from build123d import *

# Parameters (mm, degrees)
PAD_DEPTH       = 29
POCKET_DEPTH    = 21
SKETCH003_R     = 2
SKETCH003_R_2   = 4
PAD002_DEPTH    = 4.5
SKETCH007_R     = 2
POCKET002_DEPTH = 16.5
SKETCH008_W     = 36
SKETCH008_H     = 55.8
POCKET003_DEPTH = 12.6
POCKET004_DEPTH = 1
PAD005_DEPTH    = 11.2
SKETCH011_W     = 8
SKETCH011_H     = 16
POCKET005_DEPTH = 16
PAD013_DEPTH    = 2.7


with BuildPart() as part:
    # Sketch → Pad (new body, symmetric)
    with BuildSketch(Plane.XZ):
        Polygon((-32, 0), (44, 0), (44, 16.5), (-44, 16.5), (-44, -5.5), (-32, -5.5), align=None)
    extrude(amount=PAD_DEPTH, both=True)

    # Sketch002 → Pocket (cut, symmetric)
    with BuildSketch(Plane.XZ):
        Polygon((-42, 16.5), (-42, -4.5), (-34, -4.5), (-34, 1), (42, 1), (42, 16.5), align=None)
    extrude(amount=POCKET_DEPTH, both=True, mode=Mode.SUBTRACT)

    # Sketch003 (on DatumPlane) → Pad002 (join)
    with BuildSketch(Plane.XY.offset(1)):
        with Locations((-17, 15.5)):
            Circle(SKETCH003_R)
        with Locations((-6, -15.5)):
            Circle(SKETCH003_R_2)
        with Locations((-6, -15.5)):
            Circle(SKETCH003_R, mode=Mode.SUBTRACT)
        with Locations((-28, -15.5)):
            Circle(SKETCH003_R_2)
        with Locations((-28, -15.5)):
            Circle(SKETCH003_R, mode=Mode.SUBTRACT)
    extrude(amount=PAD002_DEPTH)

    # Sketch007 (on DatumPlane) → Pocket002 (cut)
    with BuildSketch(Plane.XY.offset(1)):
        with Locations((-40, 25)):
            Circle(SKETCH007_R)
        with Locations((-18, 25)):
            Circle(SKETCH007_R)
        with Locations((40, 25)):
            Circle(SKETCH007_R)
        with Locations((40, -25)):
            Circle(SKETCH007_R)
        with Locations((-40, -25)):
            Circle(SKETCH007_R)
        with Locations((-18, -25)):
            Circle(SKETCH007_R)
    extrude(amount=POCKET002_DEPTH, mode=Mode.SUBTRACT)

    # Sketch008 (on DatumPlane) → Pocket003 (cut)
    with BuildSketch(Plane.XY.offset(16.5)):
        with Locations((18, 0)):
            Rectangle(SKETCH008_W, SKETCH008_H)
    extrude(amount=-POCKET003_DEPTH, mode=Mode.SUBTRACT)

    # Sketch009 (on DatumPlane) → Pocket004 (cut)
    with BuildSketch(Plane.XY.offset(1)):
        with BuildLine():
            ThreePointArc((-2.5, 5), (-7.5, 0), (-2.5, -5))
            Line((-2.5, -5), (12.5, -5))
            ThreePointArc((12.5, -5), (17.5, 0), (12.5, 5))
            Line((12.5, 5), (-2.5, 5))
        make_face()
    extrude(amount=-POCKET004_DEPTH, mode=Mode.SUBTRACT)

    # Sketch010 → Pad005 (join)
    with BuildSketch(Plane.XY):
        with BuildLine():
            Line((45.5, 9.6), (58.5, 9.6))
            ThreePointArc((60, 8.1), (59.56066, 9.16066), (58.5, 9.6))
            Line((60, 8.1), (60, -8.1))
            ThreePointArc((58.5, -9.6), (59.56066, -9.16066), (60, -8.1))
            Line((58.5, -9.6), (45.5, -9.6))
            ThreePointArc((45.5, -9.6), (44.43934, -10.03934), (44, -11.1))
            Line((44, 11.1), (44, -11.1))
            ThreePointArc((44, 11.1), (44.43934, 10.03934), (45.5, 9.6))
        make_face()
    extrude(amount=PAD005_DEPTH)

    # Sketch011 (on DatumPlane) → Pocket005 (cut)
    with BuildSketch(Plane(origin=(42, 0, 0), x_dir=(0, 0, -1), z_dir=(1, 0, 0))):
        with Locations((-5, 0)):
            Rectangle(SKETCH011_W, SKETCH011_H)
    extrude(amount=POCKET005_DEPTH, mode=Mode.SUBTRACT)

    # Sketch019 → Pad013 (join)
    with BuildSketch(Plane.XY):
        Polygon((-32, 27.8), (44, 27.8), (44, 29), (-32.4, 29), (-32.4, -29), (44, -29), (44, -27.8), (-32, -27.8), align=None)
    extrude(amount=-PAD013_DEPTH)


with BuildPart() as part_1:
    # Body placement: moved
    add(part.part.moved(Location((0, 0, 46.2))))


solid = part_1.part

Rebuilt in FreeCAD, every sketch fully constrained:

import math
import FreeCAD as App
import Part
import Sketcher
from FreeCAD import Vector
Q = App.Units.Quantity

doc = App.newDocument("Part")
body = doc.addObject("PartDesign::Body", "Body")

# Sketch on XZ plane
sketch1 = body.newObject("Sketcher::SketchObject", "Sketch")
sketch1.AttachmentSupport = (doc.getObject("XZ_Plane"), [""])
sketch1.MapMode = "FlatFace"
sketch1.addGeometry(Part.LineSegment(Vector(-32, 0, 0), Vector(44, 0, 0)), False)
sketch1.addGeometry(Part.LineSegment(Vector(44, 0, 0), Vector(44, 16, 0)), False)
sketch1.addGeometry(Part.LineSegment(Vector(44, 16, 0), Vector(-44, 16, 0)), False)
sketch1.addGeometry(Part.LineSegment(Vector(-44, 16, 0), Vector(-44, -6, 0)), False)
sketch1.addGeometry(Part.LineSegment(Vector(-44, -6, 0), Vector(-32, -6, 0)), False)
sketch1.addGeometry(Part.LineSegment(Vector(-32, -6, 0), Vector(-32, 0, 0)), False)
sketch1.addConstraint(Sketcher.Constraint("Coincident", 0, 2, 1, 1))
sketch1.addConstraint(Sketcher.Constraint("Coincident", 1, 2, 2, 1))
sketch1.addConstraint(Sketcher.Constraint("Coincident", 2, 2, 3, 1))
sketch1.addConstraint(Sketcher.Constraint("Coincident", 3, 2, 4, 1))
sketch1.addConstraint(Sketcher.Constraint("Coincident", 4, 2, 5, 1))
sketch1.addConstraint(Sketcher.Constraint("Coincident", 5, 2, 0, 1))
sketch1.addConstraint(Sketcher.Constraint("Horizontal", 0))
sketch1.addConstraint(Sketcher.Constraint("Vertical", 1))
sketch1.addConstraint(Sketcher.Constraint("Horizontal", 2))
sketch1.addConstraint(Sketcher.Constraint("Vertical", 3))
sketch1.addConstraint(Sketcher.Constraint("Horizontal", 4))
sketch1.addConstraint(Sketcher.Constraint("Vertical", 5))
sketch1.addConstraint(Sketcher.Constraint("PointOnObject", 0, 2, -1))
sketch1.addConstraint(Sketcher.Constraint("DistanceX", 0, 1, 0, 2, Q("76 mm")))
sketch1.addConstraint(Sketcher.Constraint("DistanceX", 2, 2, 2, 1, Q("88 mm")))
sketch1.addConstraint(Sketcher.Constraint("DistanceY", 3, 2, 3, 1, Q("22 mm")))
sketch1.addConstraint(Sketcher.Constraint("DistanceY", 1, 1, 1, 2, Q("16.5 mm")))
sketch1.addConstraint(Sketcher.Constraint("DistanceX", -1, 1, 0, 2, Q("44 mm")))
pad1 = body.newObject("PartDesign::Pad", "Pad")
pad1.Profile = sketch1
pad1.Length = 58
pad1.Midplane = True

# Sketch on XZ plane
sketch2 = body.newObject("Sketcher::SketchObject", "Sketch001")
sketch2.AttachmentSupport = (doc.getObject("XZ_Plane"), [""])
sketch2.MapMode = "FlatFace"
sketch2.addGeometry(Part.LineSegment(Vector(-42, 16, 0), Vector(-42, -4, 0)), False)
sketch2.addGeometry(Part.LineSegment(Vector(-42, -4, 0), Vector(-34, -4, 0)), False)
sketch2.addGeometry(Part.LineSegment(Vector(-34, -4, 0), Vector(-34, 1, 0)), False)
sketch2.addGeometry(Part.LineSegment(Vector(-34, 1, 0), Vector(42, 1, 0)), False)
sketch2.addGeometry(Part.LineSegment(Vector(42, 1, 0), Vector(42, 16, 0)), False)
sketch2.addGeometry(Part.LineSegment(Vector(42, 16, 0), Vector(-42, 16, 0)), False)
sketch2.addConstraint(Sketcher.Constraint("Coincident", 0, 2, 1, 1))
sketch2.addConstraint(Sketcher.Constraint("Coincident", 1, 2, 2, 1))
sketch2.addConstraint(Sketcher.Constraint("Coincident", 2, 2, 3, 1))
sketch2.addConstraint(Sketcher.Constraint("Coincident", 3, 2, 4, 1))
sketch2.addConstraint(Sketcher.Constraint("Coincident", 4, 2, 5, 1))
sketch2.addConstraint(Sketcher.Constraint("Coincident", 5, 2, 0, 1))
sketch2.addConstraint(Sketcher.Constraint("Vertical", 0))
sketch2.addConstraint(Sketcher.Constraint("Horizontal", 1))
sketch2.addConstraint(Sketcher.Constraint("Vertical", 2))
sketch2.addConstraint(Sketcher.Constraint("Horizontal", 3))
sketch2.addConstraint(Sketcher.Constraint("Vertical", 4))
sketch2.addConstraint(Sketcher.Constraint("Horizontal", 5))
sketch2.addConstraint(Sketcher.Constraint("DistanceX", 1, 1, 1, 2, Q("8 mm")))
sketch2.addConstraint(Sketcher.Constraint("DistanceX", 3, 1, 3, 2, Q("76 mm")))
sketch2.addConstraint(Sketcher.Constraint("DistanceY", 0, 2, 0, 1, Q("21 mm")))
sketch2.addConstraint(Sketcher.Constraint("DistanceY", 2, 1, 2, 2, Q("5.5 mm")))
sketch2.addConstraint(Sketcher.Constraint("DistanceX", 0, 2, -1, 1, Q("42 mm")))
sketch2.addConstraint(Sketcher.Constraint("DistanceY", -1, 1, 2, 2, Q("1 mm")))
pocket1 = body.newObject("PartDesign::Pocket", "Pocket")
pocket1.Profile = sketch2
pocket1.Length = 42
pocket1.Midplane = True

# Sketch on XY plane
sketch3 = body.newObject("Sketcher::SketchObject", "Sketch002")
sketch3.AttachmentSupport = (doc.getObject("XY_Plane"), [""])
sketch3.MapMode = "FlatFace"
sketch3.AttachmentOffset = App.Placement(Vector(0, 0, 1), App.Rotation())
sketch3.addGeometry(Part.Circle(Vector(-17, 15.5, 0), Vector(0, 0, 1), 2), False)
sketch3.addGeometry(Part.Circle(Vector(-6, -15.5, 0), Vector(0, 0, 1), 4), False)
sketch3.addGeometry(Part.Circle(Vector(-6, -15.5, 0), Vector(0, 0, 1), 2), False)
sketch3.addGeometry(Part.Circle(Vector(-28, -15.5, 0), Vector(0, 0, 1), 4), False)
sketch3.addGeometry(Part.Circle(Vector(-28, -15.5, 0), Vector(0, 0, 1), 2), False)
sketch3.addConstraint(Sketcher.Constraint("Coincident", 2, 3, 1, 3))
sketch3.addConstraint(Sketcher.Constraint("Coincident", 4, 3, 3, 3))
sketch3.addConstraint(Sketcher.Constraint("Equal", 0, 2))
sketch3.addConstraint(Sketcher.Constraint("Equal", 1, 3))
sketch3.addConstraint(Sketcher.Constraint("Equal", 2, 4))
sketch3.addConstraint(Sketcher.Constraint("Horizontal", 2, 3, 3, 3))
sketch3.addConstraint(Sketcher.Constraint("Diameter", 0, Q("4 mm")))
sketch3.addConstraint(Sketcher.Constraint("Diameter", 1, Q("8 mm")))
sketch3.addConstraint(Sketcher.Constraint("DistanceX", 0, 3, -1, 1, Q("17 mm")))
sketch3.addConstraint(Sketcher.Constraint("DistanceX", 1, 3, -1, 1, Q("6 mm")))
sketch3.addConstraint(Sketcher.Constraint("DistanceX", 3, 3, -1, 1, Q("28 mm")))
sketch3.addConstraint(Sketcher.Constraint("DistanceY", 1, 3, 0, 3, Q("31 mm")))
sketch3.addConstraint(Sketcher.Constraint("DistanceY", -1, 1, 0, 3, Q("15.5 mm")))
pad2 = body.newObject("PartDesign::Pad", "Pad001")
pad2.Profile = sketch3
pad2.Length = 4.5

# Sketch on XY plane
sketch4 = body.newObject("Sketcher::SketchObject", "Sketch003")
sketch4.AttachmentSupport = (doc.getObject("XY_Plane"), [""])
sketch4.MapMode = "FlatFace"
sketch4.AttachmentOffset = App.Placement(Vector(0, 0, 1), App.Rotation())
sketch4.addGeometry(Part.Circle(Vector(-40, 25, 0), Vector(0, 0, 1), 2), False)
sketch4.addGeometry(Part.Circle(Vector(-18, 25, 0), Vector(0, 0, 1), 2), False)
sketch4.addGeometry(Part.Circle(Vector(40, 25, 0), Vector(0, 0, 1), 2), False)
sketch4.addGeometry(Part.Circle(Vector(40, -25, 0), Vector(0, 0, 1), 2), False)
sketch4.addGeometry(Part.Circle(Vector(-40, -25, 0), Vector(0, 0, 1), 2), False)
sketch4.addGeometry(Part.Circle(Vector(-18, -25, 0), Vector(0, 0, 1), 2), False)
sketch4.addConstraint(Sketcher.Constraint("Equal", 0, 1))
sketch4.addConstraint(Sketcher.Constraint("Equal", 1, 2))
sketch4.addConstraint(Sketcher.Constraint("Equal", 2, 3))
sketch4.addConstraint(Sketcher.Constraint("Equal", 3, 4))
sketch4.addConstraint(Sketcher.Constraint("Equal", 4, 5))
sketch4.addConstraint(Sketcher.Constraint("Symmetric", 0, 3, 3, 3, -1, 1))
sketch4.addConstraint(Sketcher.Constraint("Symmetric", 2, 3, 4, 3, -1, 1))
sketch4.addConstraint(Sketcher.Constraint("Symmetric", 0, 3, 2, 3, -2))
sketch4.addConstraint(Sketcher.Constraint("Symmetric", 1, 3, 5, 3, -1))
sketch4.addConstraint(Sketcher.Constraint("Horizontal", 0, 3, 1, 3))
sketch4.addConstraint(Sketcher.Constraint("Diameter", 0, Q("4 mm")))
sketch4.addConstraint(Sketcher.Constraint("DistanceX", 0, 3, -1, 1, Q("40 mm")))
sketch4.addConstraint(Sketcher.Constraint("DistanceY", -1, 1, 0, 3, Q("25 mm")))
sketch4.addConstraint(Sketcher.Constraint("DistanceX", 1, 3, -1, 1, Q("18 mm")))
pocket2 = body.newObject("PartDesign::Pocket", "Pocket001")
pocket2.Profile = sketch4
pocket2.Length = 16.5
pocket2.Reversed = True

# Sketch on XY plane
sketch5 = body.newObject("Sketcher::SketchObject", "Sketch004")
sketch5.AttachmentSupport = (doc.getObject("XY_Plane"), [""])
sketch5.MapMode = "FlatFace"
sketch5.AttachmentOffset = App.Placement(Vector(0, 0, 16.5), App.Rotation())
sketch5.addGeometry(Part.LineSegment(Vector(0, 28, 0), Vector(0, -28, 0)), False)
sketch5.addGeometry(Part.LineSegment(Vector(0, -28, 0), Vector(36, -28, 0)), False)
sketch5.addGeometry(Part.LineSegment(Vector(36, -28, 0), Vector(36, 28, 0)), False)
sketch5.addGeometry(Part.LineSegment(Vector(36, 28, 0), Vector(0, 28, 0)), False)
sketch5.addConstraint(Sketcher.Constraint("Coincident", 0, 2, 1, 1))
sketch5.addConstraint(Sketcher.Constraint("Coincident", 1, 2, 2, 1))
sketch5.addConstraint(Sketcher.Constraint("Coincident", 2, 2, 3, 1))
sketch5.addConstraint(Sketcher.Constraint("Coincident", 3, 2, 0, 1))
sketch5.addConstraint(Sketcher.Constraint("Vertical", 0))
sketch5.addConstraint(Sketcher.Constraint("Horizontal", 1))
sketch5.addConstraint(Sketcher.Constraint("Vertical", 2))
sketch5.addConstraint(Sketcher.Constraint("Horizontal", 3))
sketch5.addConstraint(Sketcher.Constraint("Symmetric", 0, 2, 3, 2, -1, 1))
sketch5.addConstraint(Sketcher.Constraint("DistanceX", 1, 1, 1, 2, Q("36 mm")))
sketch5.addConstraint(Sketcher.Constraint("DistanceY", 0, 2, 0, 1, Q("55.8 mm")))
pocket3 = body.newObject("PartDesign::Pocket", "Pocket002")
pocket3.Profile = sketch5
pocket3.Length = 12.6

# Sketch on XY plane
sketch6 = body.newObject("Sketcher::SketchObject", "Sketch005")
sketch6.AttachmentSupport = (doc.getObject("XY_Plane"), [""])
sketch6.MapMode = "FlatFace"
sketch6.AttachmentOffset = App.Placement(Vector(0, 0, 1), App.Rotation())
sketch6.addGeometry(Part.ArcOfCircle(Part.Circle(Vector(-2, 0, 0), Vector(0, 0, 1), 5), math.radians(90), math.radians(270)), False)
sketch6.addGeometry(Part.LineSegment(Vector(-2, -5, 0), Vector(12, -5, 0)), False)
sketch6.addGeometry(Part.ArcOfCircle(Part.Circle(Vector(12, 0, 0), Vector(0, 0, 1), 5), math.radians(-90), math.radians(90)), False)
sketch6.addGeometry(Part.LineSegment(Vector(12, 5, 0), Vector(-2, 5, 0)), False)
sketch6.addConstraint(Sketcher.Constraint("Tangent", 0, 2, 1, 1))
sketch6.addConstraint(Sketcher.Constraint("Tangent", 1, 2, 2, 1))
sketch6.addConstraint(Sketcher.Constraint("Tangent", 2, 2, 3, 1))
sketch6.addConstraint(Sketcher.Constraint("Tangent", 3, 2, 0, 1))
sketch6.addConstraint(Sketcher.Constraint("Horizontal", 1))
sketch6.addConstraint(Sketcher.Constraint("Horizontal", 3))
sketch6.addConstraint(Sketcher.Constraint("PointOnObject", 0, 3, -1))
sketch6.addConstraint(Sketcher.Constraint("Radius", 0, Q("5 mm")))
sketch6.addConstraint(Sketcher.Constraint("DistanceX", 1, 1, 1, 2, Q("15 mm")))
sketch6.addConstraint(Sketcher.Constraint("DistanceX", 0, 3, -1, 1, Q("2.5 mm")))
pocket4 = body.newObject("PartDesign::Pocket", "Pocket003")
pocket4.Profile = sketch6
pocket4.Length = 1

# Sketch on XY plane
sketch7 = body.newObject("Sketcher::SketchObject", "Sketch006")
sketch7.AttachmentSupport = (doc.getObject("XY_Plane"), [""])
sketch7.MapMode = "FlatFace"
sketch7.addGeometry(Part.LineSegment(Vector(58.5, 9.6, 0), Vector(45.5, 9.6, 0)), False)
sketch7.addGeometry(Part.ArcOfCircle(Part.Circle(Vector(45.5, 11.1, 0), Vector(0, 0, 1), 1.5), math.radians(-180), math.radians(-90)), False)
sketch7.addGeometry(Part.LineSegment(Vector(44, 11.1, 0), Vector(44, -11.1, 0)), False)
sketch7.addGeometry(Part.ArcOfCircle(Part.Circle(Vector(45.5, -11.1, 0), Vector(0, 0, 1), 1.5), math.radians(90), math.radians(180)), False)
sketch7.addGeometry(Part.LineSegment(Vector(45.5, -9.6, 0), Vector(58.5, -9.6, 0)), False)
sketch7.addGeometry(Part.ArcOfCircle(Part.Circle(Vector(58.5, -8.1, 0), Vector(0, 0, 1), 1.5), math.radians(-90), math.radians(0)), False)
sketch7.addGeometry(Part.LineSegment(Vector(60, -8.1, 0), Vector(60, 8.1, 0)), False)
sketch7.addGeometry(Part.ArcOfCircle(Part.Circle(Vector(58.5, 8.1, 0), Vector(0, 0, 1), 1.5), math.radians(0), math.radians(90)), False)
sketch7.addConstraint(Sketcher.Constraint("Tangent", 0, 2, 1, 2))
sketch7.addConstraint(Sketcher.Constraint("Tangent", 1, 1, 2, 1))
sketch7.addConstraint(Sketcher.Constraint("Tangent", 2, 2, 3, 2))
sketch7.addConstraint(Sketcher.Constraint("Tangent", 3, 1, 4, 1))
sketch7.addConstraint(Sketcher.Constraint("Tangent", 4, 2, 5, 1))
sketch7.addConstraint(Sketcher.Constraint("Tangent", 5, 2, 6, 1))
sketch7.addConstraint(Sketcher.Constraint("Tangent", 6, 2, 7, 1))
sketch7.addConstraint(Sketcher.Constraint("Tangent", 7, 2, 0, 1))
sketch7.addConstraint(Sketcher.Constraint("Horizontal", 0))
sketch7.addConstraint(Sketcher.Constraint("Vertical", 2))
sketch7.addConstraint(Sketcher.Constraint("Horizontal", 4))
sketch7.addConstraint(Sketcher.Constraint("Vertical", 6))
sketch7.addConstraint(Sketcher.Constraint("Equal", 1, 3))
sketch7.addConstraint(Sketcher.Constraint("Equal", 3, 5))
sketch7.addConstraint(Sketcher.Constraint("Equal", 5, 7))
sketch7.addConstraint(Sketcher.Constraint("Radius", 1, Q("1.500001 mm")))
sketch7.addConstraint(Sketcher.Constraint("DistanceX", 0, 2, 0, 1, Q("13 mm")))
sketch7.addConstraint(Sketcher.Constraint("DistanceY", 2, 2, 2, 1, Q("22.2 mm")))
sketch7.addConstraint(Sketcher.Constraint("DistanceX", -1, 1, 1, 1, Q("44 mm")))
sketch7.addConstraint(Sketcher.Constraint("DistanceY", -1, 1, 1, 3, Q("11.100001 mm")))
pad3 = body.newObject("PartDesign::Pad", "Pad002")
pad3.Profile = sketch7
pad3.Length = 11.2

# Sketch on YZ plane
sketch8 = body.newObject("Sketcher::SketchObject", "Sketch007")
sketch8.AttachmentSupport = (doc.getObject("YZ_Plane"), [""])
sketch8.MapMode = "FlatFace"
sketch8.AttachmentOffset = App.Placement(Vector(0, 0, 42), App.Rotation())
sketch8.addGeometry(Part.LineSegment(Vector(8, 9, 0), Vector(-8, 9, 0)), False)
sketch8.addGeometry(Part.LineSegment(Vector(-8, 9, 0), Vector(-8, 1, 0)), False)
sketch8.addGeometry(Part.LineSegment(Vector(-8, 1, 0), Vector(8, 1, 0)), False)
sketch8.addGeometry(Part.LineSegment(Vector(8, 1, 0), Vector(8, 9, 0)), False)
sketch8.addConstraint(Sketcher.Constraint("Coincident", 0, 2, 1, 1))
sketch8.addConstraint(Sketcher.Constraint("Coincident", 1, 2, 2, 1))
sketch8.addConstraint(Sketcher.Constraint("Coincident", 2, 2, 3, 1))
sketch8.addConstraint(Sketcher.Constraint("Coincident", 3, 2, 0, 1))
sketch8.addConstraint(Sketcher.Constraint("Horizontal", 0))
sketch8.addConstraint(Sketcher.Constraint("Vertical", 1))
sketch8.addConstraint(Sketcher.Constraint("Horizontal", 2))
sketch8.addConstraint(Sketcher.Constraint("Vertical", 3))
sketch8.addConstraint(Sketcher.Constraint("DistanceX", 0, 2, 0, 1, Q("16 mm")))
sketch8.addConstraint(Sketcher.Constraint("DistanceY", 1, 2, 1, 1, Q("8 mm")))
sketch8.addConstraint(Sketcher.Constraint("DistanceX", 0, 2, -1, 1, Q("8 mm")))
sketch8.addConstraint(Sketcher.Constraint("DistanceY", -1, 1, 0, 2, Q("9 mm")))
pocket5 = body.newObject("PartDesign::Pocket", "Pocket004")
pocket5.Profile = sketch8
pocket5.Length = 16
pocket5.Reversed = True

# Sketch on XY plane
sketch9 = body.newObject("Sketcher::SketchObject", "Sketch008")
sketch9.AttachmentSupport = (doc.getObject("XY_Plane"), [""])
sketch9.MapMode = "FlatFace"
sketch9.addGeometry(Part.LineSegment(Vector(-32, 27.8, 0), Vector(44, 27.8, 0)), False)
sketch9.addGeometry(Part.LineSegment(Vector(44, 27.8, 0), Vector(44, 29, 0)), False)
sketch9.addGeometry(Part.LineSegment(Vector(44, 29, 0), Vector(-32.4, 29, 0)), False)
sketch9.addGeometry(Part.LineSegment(Vector(-32.4, 29, 0), Vector(-32.4, -29, 0)), False)
sketch9.addGeometry(Part.LineSegment(Vector(-32.4, -29, 0), Vector(44, -29, 0)), False)
sketch9.addGeometry(Part.LineSegment(Vector(44, -29, 0), Vector(44, -27.8, 0)), False)
sketch9.addGeometry(Part.LineSegment(Vector(44, -27.8, 0), Vector(-32, -27.8, 0)), False)
sketch9.addGeometry(Part.LineSegment(Vector(-32, -27.8, 0), Vector(-32, 27.8, 0)), False)
sketch9.addConstraint(Sketcher.Constraint("Coincident", 0, 2, 1, 1))
sketch9.addConstraint(Sketcher.Constraint("Coincident", 1, 2, 2, 1))
sketch9.addConstraint(Sketcher.Constraint("Coincident", 2, 2, 3, 1))
sketch9.addConstraint(Sketcher.Constraint("Coincident", 3, 2, 4, 1))
sketch9.addConstraint(Sketcher.Constraint("Coincident", 4, 2, 5, 1))
sketch9.addConstraint(Sketcher.Constraint("Coincident", 5, 2, 6, 1))
sketch9.addConstraint(Sketcher.Constraint("Coincident", 6, 2, 7, 1))
sketch9.addConstraint(Sketcher.Constraint("Coincident", 7, 2, 0, 1))
sketch9.addConstraint(Sketcher.Constraint("Horizontal", 0))
sketch9.addConstraint(Sketcher.Constraint("Vertical", 1))
sketch9.addConstraint(Sketcher.Constraint("Horizontal", 2))
sketch9.addConstraint(Sketcher.Constraint("Vertical", 3))
sketch9.addConstraint(Sketcher.Constraint("Horizontal", 4))
sketch9.addConstraint(Sketcher.Constraint("Vertical", 5))
sketch9.addConstraint(Sketcher.Constraint("Horizontal", 6))
sketch9.addConstraint(Sketcher.Constraint("Vertical", 7))
sketch9.addConstraint(Sketcher.Constraint("Symmetric", 1, 2, 4, 2, -1))
sketch9.addConstraint(Sketcher.Constraint("Equal", 1, 5))
sketch9.addConstraint(Sketcher.Constraint("DistanceX", 0, 1, 0, 2, Q("76 mm")))
sketch9.addConstraint(Sketcher.Constraint("DistanceY", 3, 2, 3, 1, Q("58 mm")))
sketch9.addConstraint(Sketcher.Constraint("DistanceX", 2, 2, 2, 1, Q("76.4 mm")))
sketch9.addConstraint(Sketcher.Constraint("DistanceY", 1, 1, 1, 2, Q("1.2 mm")))
sketch9.addConstraint(Sketcher.Constraint("DistanceX", -1, 1, 0, 2, Q("44 mm")))
pad4 = body.newObject("PartDesign::Pad", "Pad003")
pad4.Profile = sketch9
pad4.Length = 2.7
pad4.Reversed = True
body2 = doc.addObject("PartDesign::Body", "Body001")
doc.recompute()

body.Placement = App.Placement(Vector(0, 0, 46.2), App.Rotation(Vector(0, 0, 1), 0))
boolean = body2.newObject("PartDesign::Boolean", "Boolean")
boolean.Type = "Fuse"
boolean.addObjects([body])

doc.recompute()
